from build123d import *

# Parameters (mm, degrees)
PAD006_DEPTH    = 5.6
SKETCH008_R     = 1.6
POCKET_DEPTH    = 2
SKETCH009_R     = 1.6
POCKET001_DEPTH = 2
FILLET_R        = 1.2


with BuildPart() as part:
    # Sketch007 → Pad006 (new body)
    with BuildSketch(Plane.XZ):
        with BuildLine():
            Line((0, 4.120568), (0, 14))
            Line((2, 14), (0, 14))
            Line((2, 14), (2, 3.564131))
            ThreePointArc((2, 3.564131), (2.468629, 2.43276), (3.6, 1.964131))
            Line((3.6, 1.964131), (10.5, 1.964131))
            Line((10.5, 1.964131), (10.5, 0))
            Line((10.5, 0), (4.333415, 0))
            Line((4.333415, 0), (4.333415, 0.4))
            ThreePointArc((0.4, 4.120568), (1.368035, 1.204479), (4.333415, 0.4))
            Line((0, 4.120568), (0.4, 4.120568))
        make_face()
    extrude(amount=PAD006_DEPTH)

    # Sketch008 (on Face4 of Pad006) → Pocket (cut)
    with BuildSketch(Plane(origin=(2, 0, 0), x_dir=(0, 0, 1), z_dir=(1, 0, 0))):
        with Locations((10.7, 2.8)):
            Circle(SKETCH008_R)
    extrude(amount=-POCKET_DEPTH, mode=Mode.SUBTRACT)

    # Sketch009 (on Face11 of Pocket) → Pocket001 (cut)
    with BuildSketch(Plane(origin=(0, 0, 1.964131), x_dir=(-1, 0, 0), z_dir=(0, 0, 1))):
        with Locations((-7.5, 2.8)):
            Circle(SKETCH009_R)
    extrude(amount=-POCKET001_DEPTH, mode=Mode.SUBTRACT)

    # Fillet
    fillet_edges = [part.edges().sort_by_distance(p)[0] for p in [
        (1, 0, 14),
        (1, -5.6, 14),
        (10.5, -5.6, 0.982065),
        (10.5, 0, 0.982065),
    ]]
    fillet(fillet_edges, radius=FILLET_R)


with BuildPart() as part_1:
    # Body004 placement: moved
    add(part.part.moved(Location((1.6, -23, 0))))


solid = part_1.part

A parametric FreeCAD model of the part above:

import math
import FreeCAD as App
import Part
import Sketcher
Q = App.Units.Quantity


def edges_at(feature, points):
    """Names of the edges that pass closest to the given points."""
    edges = feature.Shape.Edges
    near = lambda p: min(range(len(edges)), key=lambda i: edges[i].distToShape(Part.Vertex(*p))[0])
    return sorted({f"Edge{near(p) + 1}" for p in points})

doc = App.newDocument("Part")
body = doc.addObject("PartDesign::Body", "Body")

# Sketch on XZ plane
sketch1 = body.newObject("Sketcher::SketchObject", "Sketch")
sketch1.AttachmentSupport = (doc.getObject("XZ_Plane"), [""])
sketch1.MapMode = "FlatFace"
sketch1.addGeometry(Part.LineSegment(App.Vector(0, 14, 0), App.Vector(0, 4.120568, 0)), False)
sketch1.addGeometry(Part.LineSegment(App.Vector(0, 4.120568, 0), App.Vector(0.4, 4.120568, 0)), False)
sketch1.addGeometry(Part.ArcOfCircle(Part.Circle(App.Vector(3.599999, 3.56413, 0), App.Vector(0, 0, 1), 3.248018), math.radians(170.13565), math.radians(283.050166)), False)
sketch1.addGeometry(Part.LineSegment(App.Vector(4.333415, 0.4, 0), App.Vector(4.333415, 0, 0)), False)
sketch1.addGeometry(Part.LineSegment(App.Vector(4.333415, 0, 0), App.Vector(10.5, 0, 0)), False)
sketch1.addGeometry(Part.LineSegment(App.Vector(10.5, 0, 0), App.Vector(10.5, 1.964131, 0)), False)
sketch1.addGeometry(Part.LineSegment(App.Vector(10.5, 1.964131, 0), App.Vector(3.6, 1.964131, 0)), False)
sketch1.addGeometry(Part.ArcOfCircle(Part.Circle(App.Vector(3.599999, 3.56413, 0), App.Vector(0, 0, 1), 1.599999), math.radians(179.999982), math.radians(270.000018)), False)
sketch1.addGeometry(Part.LineSegment(App.Vector(2, 3.564131, 0), App.Vector(2, 14, 0)), False)
sketch1.addGeometry(Part.LineSegment(App.Vector(2, 14, 0), App.Vector(0, 14, 0)), False)
sketch1.addConstraint(Sketcher.Constraint("Coincident", 0, 2, 1, 1))
sketch1.addConstraint(Sketcher.Constraint("Coincident", 1, 2, 2, 1))
sketch1.addConstraint(Sketcher.Constraint("Coincident", 2, 2, 3, 1))
sketch1.addConstraint(Sketcher.Constraint("Coincident", 3, 2, 4, 1))
sketch1.addConstraint(Sketcher.Constraint("Coincident", 4, 2, 5, 1))
sketch1.addConstraint(Sketcher.Constraint("Coincident", 5, 2, 6, 1))
sketch1.addConstraint(Sketcher.Constraint("Tangent", 6, 2, 7, 2))
sketch1.addConstraint(Sketcher.Constraint("Tangent", 7, 1, 8, 1))
sketch1.addConstraint(Sketcher.Constraint("Coincident", 8, 2, 9, 1))
sketch1.addConstraint(Sketcher.Constraint("Coincident", 9, 2, 0, 1))
sketch1.addConstraint(Sketcher.Constraint("Vertical", 0))
sketch1.addConstraint(Sketcher.Constraint("Horizontal", 1))
sketch1.addConstraint(Sketcher.Constraint("Vertical", 3))
sketch1.addConstraint(Sketcher.Constraint("Horizontal", 4))
sketch1.addConstraint(Sketcher.Constraint("Vertical", 5))
sketch1.addConstraint(Sketcher.Constraint("Horizontal", 6))
sketch1.addConstraint(Sketcher.Constraint("Vertical", 8))
sketch1.addConstraint(Sketcher.Constraint("Horizontal", 9))
sketch1.addConstraint(Sketcher.Constraint("Coincident", 7, 3, 2, 3))
sketch1.addConstraint(Sketcher.Constraint("PointOnObject", 0, 2, -2))
sketch1.addConstraint(Sketcher.Constraint("PointOnObject", 3, 2, -1))
sketch1.addConstraint(Sketcher.Constraint("Equal", 1, 3))
sketch1.addConstraint(Sketcher.Constraint("Radius", 7, Q("1.599999 mm")))
sketch1.addConstraint(Sketcher.Constraint("DistanceX", 9, 2, 9, 1, Q("2 mm")))
sketch1.addConstraint(Sketcher.Constraint("DistanceX", 1, 1, 1, 2, Q("0.4 mm")))
sketch1.addConstraint(Sketcher.Constraint("DistanceX", 6, 2, 6, 1, Q("6.9 mm")))
sketch1.addConstraint(Sketcher.Constraint("DistanceY", -1, 1, 8, 2, Q("14 mm")))
sketch1.addConstraint(Sketcher.Constraint("Radius", 2, Q("3.248018 mm")))
sketch1.addConstraint(Sketcher.Constraint("DistanceY", 5, 1, 5, 2, Q("1.964131 mm")))
pad1 = body.newObject("PartDesign::Pad", "Pad")
pad1.Profile = sketch1
pad1.Length = 5.6

# Sketch on YZ plane
sketch2 = body.newObject("Sketcher::SketchObject", "Sketch001")
sketch2.AttachmentSupport = (doc.getObject("YZ_Plane"), [""])
sketch2.MapMode = "FlatFace"
sketch2.AttachmentOffset = App.Placement(App.Vector(0, 0, 2), App.Rotation())
sketch2.addGeometry(Part.Circle(App.Vector(-2.8, 10.7, 0), App.Vector(0, 0, 1), 1.6), False)
sketch2.addConstraint(Sketcher.Constraint("Diameter", 0, Q("3.2 mm")))
sketch2.addConstraint(Sketcher.Constraint("DistanceX", 0, 3, -1, 1, Q("2.8 mm")))
sketch2.addConstraint(Sketcher.Constraint("DistanceY", -1, 1, 0, 3, Q("10.7 mm")))
pocket1 = body.newObject("PartDesign::Pocket", "Pocket")
pocket1.Profile = sketch2
pocket1.Length = 2

# Sketch on XY plane
sketch3 = body.newObject("Sketcher::SketchObject", "Sketch002")
sketch3.AttachmentSupport = (doc.getObject("XY_Plane"), [""])
sketch3.MapMode = "FlatFace"
sketch3.AttachmentOffset = App.Placement(App.Vector(0, 0, 1.964131), App.Rotation())
sketch3.addGeometry(Part.Circle(App.Vector(7.5, -2.8, 0), App.Vector(0, 0, 1), 1.6), False)
sketch3.addConstraint(Sketcher.Constraint("Diameter", 0, Q("3.2 mm")))
sketch3.addConstraint(Sketcher.Constraint("DistanceX", -1, 1, 0, 3, Q("7.5 mm")))
sketch3.addConstraint(Sketcher.Constraint("DistanceY", 0, 3, -1, 1, Q("2.8 mm")))
pocket2 = body.newObject("PartDesign::Pocket", "Pocket001")
pocket2.Profile = sketch3
pocket2.Length = 2
doc.recompute()

fillet = body.newObject("PartDesign::Fillet", "Fillet")
fillet.Base = (pocket2, edges_at(pocket2, [
    (1, 0, 14),
    (1, -5.6, 14),
    (10.5, -5.6, 0.982),
    (10.5, 0, 0.982),
]))
fillet.Radius = 1.2
body2 = doc.addObject("PartDesign::Body", "Body001")
doc.recompute()

body.Placement = App.Placement(App.Vector(1.6, -23, 0), App.Rotation(App.Vector(0, 0, 1), 0))
boolean = body2.newObject("PartDesign::Boolean", "Boolean")
boolean.Type = "Fuse"
boolean.addObjects([body])

doc.recompute()
